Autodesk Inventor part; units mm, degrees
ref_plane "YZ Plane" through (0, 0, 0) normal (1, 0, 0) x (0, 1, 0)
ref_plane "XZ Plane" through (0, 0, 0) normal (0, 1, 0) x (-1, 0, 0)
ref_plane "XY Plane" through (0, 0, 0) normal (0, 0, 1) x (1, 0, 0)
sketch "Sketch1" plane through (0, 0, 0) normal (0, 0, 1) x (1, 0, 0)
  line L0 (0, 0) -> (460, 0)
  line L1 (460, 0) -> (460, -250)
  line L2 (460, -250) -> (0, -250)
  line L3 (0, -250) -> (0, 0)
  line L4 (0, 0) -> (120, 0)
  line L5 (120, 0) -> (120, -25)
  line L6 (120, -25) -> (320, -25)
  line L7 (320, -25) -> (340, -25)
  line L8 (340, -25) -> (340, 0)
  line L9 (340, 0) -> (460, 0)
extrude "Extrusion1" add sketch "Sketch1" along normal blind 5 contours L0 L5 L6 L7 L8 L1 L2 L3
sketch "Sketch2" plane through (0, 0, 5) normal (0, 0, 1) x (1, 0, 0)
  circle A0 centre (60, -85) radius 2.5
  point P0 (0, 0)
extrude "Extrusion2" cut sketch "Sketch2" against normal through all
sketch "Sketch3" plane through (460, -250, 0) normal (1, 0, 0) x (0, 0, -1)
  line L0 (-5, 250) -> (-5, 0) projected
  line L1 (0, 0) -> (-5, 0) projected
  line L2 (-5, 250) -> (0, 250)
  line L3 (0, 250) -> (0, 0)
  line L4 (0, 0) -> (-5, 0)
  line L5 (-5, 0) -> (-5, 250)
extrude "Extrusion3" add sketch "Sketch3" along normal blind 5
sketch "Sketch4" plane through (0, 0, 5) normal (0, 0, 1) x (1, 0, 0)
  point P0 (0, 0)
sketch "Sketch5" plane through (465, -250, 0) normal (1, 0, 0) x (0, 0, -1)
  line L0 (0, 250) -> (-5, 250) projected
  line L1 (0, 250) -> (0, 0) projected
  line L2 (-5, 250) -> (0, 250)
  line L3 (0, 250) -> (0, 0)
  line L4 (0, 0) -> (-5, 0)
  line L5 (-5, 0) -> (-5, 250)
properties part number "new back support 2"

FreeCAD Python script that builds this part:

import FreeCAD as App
import Part
import Sketcher


def add_polygon(sketch, points):
    """Adds a closed chain of lines whose ends are joined by coincident constraints."""
    first, n = sketch.GeometryCount, len(points)
    for a, b in zip(points, points[1:] + points[:1]):
        sketch.addGeometry(Part.LineSegment(App.Vector(*a, 0), App.Vector(*b, 0)), False)
    for i in range(n):
        sketch.addConstraint(Sketcher.Constraint("Coincident", first + i, 2, first + (i + 1) % n, 1))

doc = App.newDocument("Part")
params = doc.addObject("Spreadsheet::Sheet", "Params")
for row, (alias, value) in enumerate([
    ("sketch1_width", "120 mm"),
    ("sketch1_width2", "460 mm"),
    ("sketch1_height", "250 mm"),
    ("sketch1_height2", "25 mm"),
    ("pad1_length", "5 mm"),
    ("sketch2_diameter", "5 mm"),
    ("sketch3_width", "250 mm"),
    ("sketch3_height", "5 mm"),
    ("pad2_length", "5 mm"),
], start=1):
    params.set(f"A{row}", alias)
    params.set(f"B{row}", "=" + value)
    params.setAlias(f"B{row}", alias)

body = doc.addObject("PartDesign::Body", "Body")

# Sketch on XY plane
sketch1 = body.newObject("Sketcher::SketchObject", "Sketch")
sketch1.AttachmentSupport = (doc.getObject("XY_Plane"), [""])
sketch1.MapMode = "FlatFace"
add_polygon(sketch1, [(120, 0), (0, 0), (0, -250), (460, -250), (460, 0), (340, 0), (340, -25), (120, -25)])  # lines 0-7
sketch1.addConstraint([
    Sketcher.Constraint("Horizontal", 0),
    Sketcher.Constraint("Vertical", 1),
    Sketcher.Constraint("Horizontal", 2),
    Sketcher.Constraint("Vertical", 3),
    Sketcher.Constraint("Horizontal", 4),
    Sketcher.Constraint("Vertical", 5),
    Sketcher.Constraint("Horizontal", 6),
    Sketcher.Constraint("Vertical", 7),
    Sketcher.Constraint("Coincident", 0, 2, -1, 1),
    Sketcher.Constraint("PointOnObject", 3, 2, -1),
    Sketcher.Constraint("Equal", 0, 4),
    Sketcher.Constraint("DistanceX", 0, 2, 0, 1, 120.0),
    Sketcher.Constraint("DistanceX", 2, 1, 2, 2, 460.0),
    Sketcher.Constraint("DistanceY", 1, 2, 1, 1, 250.0),
    Sketcher.Constraint("DistanceY", 5, 2, 5, 1, 25.0),
])
sketch1.setExpression("Constraints[19]", "Params.sketch1_width")
sketch1.setExpression("Constraints[20]", "Params.sketch1_width2")
sketch1.setExpression("Constraints[21]", "Params.sketch1_height")
sketch1.setExpression("Constraints[22]", "Params.sketch1_height2")
pad1 = body.newObject("PartDesign::Pad", "Pad")
pad1.Profile = sketch1
pad1.setExpression("Length", "Params.pad1_length")

# Sketch on XY plane
sketch2 = body.newObject("Sketcher::SketchObject", "Sketch001")
sketch2.AttachmentSupport = (doc.getObject("XY_Plane"), [""])
sketch2.MapMode = "FlatFace"
sketch2.AttachmentOffset = App.Placement(App.Vector(0, 0, 5), App.Rotation())
sketch2.addGeometry(Part.Circle(App.Vector(60, -85, 0), App.Vector(0, 0, 1), 2.5), False)
sketch2.addConstraint([
    Sketcher.Constraint("Diameter", 0, 5.0),
    Sketcher.Constraint("DistanceX", -1, 1, 0, 3, 60.0),
    Sketcher.Constraint("DistanceY", 0, 3, -1, 1, 85.0),
])
sketch2.setExpression("Constraints[0]", "Params.sketch2_diameter")
pocket1 = body.newObject("PartDesign::Pocket", "Pocket")
pocket1.Profile = sketch2
pocket1.Type = "ThroughAll"

# Sketch on YZ plane
sketch3 = body.newObject("Sketcher::SketchObject", "Sketch002")
sketch3.AttachmentSupport = (doc.getObject("YZ_Plane"), [""])
sketch3.MapMode = "FlatFace"
sketch3.AttachmentOffset = App.Placement(App.Vector(0, 0, 460), App.Rotation())
add_polygon(sketch3, [(0, 0), (0, 5), (-250, 5), (-250, 0)])  # lines 0-3
sketch3.addConstraint([
    Sketcher.Constraint("Vertical", 0),
    Sketcher.Constraint("Horizontal", 1),
    Sketcher.Constraint("Vertical", 2),
    Sketcher.Constraint("Horizontal", 3),
    Sketcher.Constraint("Coincident", 3, 2, -1, 1),
    Sketcher.Constraint("DistanceX", 1, 2, 1, 1, 250.0),
    Sketcher.Constraint("DistanceY", 0, 1, 0, 2, 5.0),
])
sketch3.setExpression("Constraints[9]", "Params.sketch3_width")
sketch3.setExpression("Constraints[10]", "Params.sketch3_height")
pad2 = body.newObject("PartDesign::Pad", "Pad001")
pad2.Profile = sketch3
pad2.setExpression("Length", "Params.pad2_length")

doc.recompute()
